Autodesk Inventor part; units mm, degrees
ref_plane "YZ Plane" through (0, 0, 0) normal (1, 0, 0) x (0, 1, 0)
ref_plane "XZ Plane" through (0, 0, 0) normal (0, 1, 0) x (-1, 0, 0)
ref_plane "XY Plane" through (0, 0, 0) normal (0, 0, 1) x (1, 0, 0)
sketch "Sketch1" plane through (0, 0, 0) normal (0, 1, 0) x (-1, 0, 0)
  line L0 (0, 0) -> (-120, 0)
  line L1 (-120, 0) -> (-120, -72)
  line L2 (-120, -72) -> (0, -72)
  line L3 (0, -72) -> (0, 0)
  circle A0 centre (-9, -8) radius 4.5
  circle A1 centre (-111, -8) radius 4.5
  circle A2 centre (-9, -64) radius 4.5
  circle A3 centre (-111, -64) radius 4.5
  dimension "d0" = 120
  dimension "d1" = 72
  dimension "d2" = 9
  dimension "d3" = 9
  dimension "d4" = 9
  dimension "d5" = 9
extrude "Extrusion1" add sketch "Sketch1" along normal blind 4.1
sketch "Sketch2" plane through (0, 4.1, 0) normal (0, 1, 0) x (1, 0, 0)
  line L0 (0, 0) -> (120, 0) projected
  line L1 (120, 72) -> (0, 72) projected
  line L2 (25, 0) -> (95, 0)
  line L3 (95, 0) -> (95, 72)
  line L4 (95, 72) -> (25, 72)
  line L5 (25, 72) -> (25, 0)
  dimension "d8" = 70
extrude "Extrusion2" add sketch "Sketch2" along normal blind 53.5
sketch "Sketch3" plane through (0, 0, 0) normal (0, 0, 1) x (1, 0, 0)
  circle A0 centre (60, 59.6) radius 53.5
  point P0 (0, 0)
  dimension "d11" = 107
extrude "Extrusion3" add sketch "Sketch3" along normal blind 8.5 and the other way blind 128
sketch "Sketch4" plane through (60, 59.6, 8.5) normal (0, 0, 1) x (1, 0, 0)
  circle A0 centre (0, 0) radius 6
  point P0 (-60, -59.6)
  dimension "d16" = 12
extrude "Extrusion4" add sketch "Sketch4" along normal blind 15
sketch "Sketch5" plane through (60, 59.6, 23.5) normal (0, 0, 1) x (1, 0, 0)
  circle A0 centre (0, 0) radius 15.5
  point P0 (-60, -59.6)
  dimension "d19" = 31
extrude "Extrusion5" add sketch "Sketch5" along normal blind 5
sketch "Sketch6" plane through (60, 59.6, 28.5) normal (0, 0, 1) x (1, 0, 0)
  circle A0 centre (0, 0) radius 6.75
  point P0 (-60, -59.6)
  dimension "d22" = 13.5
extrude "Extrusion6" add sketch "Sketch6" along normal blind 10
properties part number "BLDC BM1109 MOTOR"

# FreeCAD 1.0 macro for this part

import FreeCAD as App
import Part
import Sketcher


def add_polygon(sketch, points):
    """Adds a closed chain of lines whose ends are joined by coincident constraints."""
    first, n = sketch.GeometryCount, len(points)
    for a, b in zip(points, points[1:] + points[:1]):
        sketch.addGeometry(Part.LineSegment(App.Vector(*a, 0), App.Vector(*b, 0)), False)
    for i in range(n):
        sketch.addConstraint(Sketcher.Constraint("Coincident", first + i, 2, first + (i + 1) % n, 1))

doc = App.newDocument("Part")
body = doc.addObject("PartDesign::Body", "Body")

# Sketch on XZ plane
sketch1 = doc.addObject("Sketcher::SketchObject", "Sketch")
body.addObject(sketch1)
sketch1.AttachmentSupport = (doc.XZ_Plane, [""])
sketch1.MapMode = "FlatFace"
add_polygon(sketch1, [(0, -72), (0, 0), (120, 0), (120, -72)])  # lines 0-3
sketch1.addGeometry(Part.Circle(App.Vector(111, -64, 0), App.Vector(0, 0, 1), 4.5), False)  # 4
sketch1.addGeometry(Part.Circle(App.Vector(9, -64, 0), App.Vector(0, 0, 1), 4.5), False)  # 5
sketch1.addGeometry(Part.Circle(App.Vector(111, -8, 0), App.Vector(0, 0, 1), 4.5), False)  # 6
sketch1.addGeometry(Part.Circle(App.Vector(9, -8, 0), App.Vector(0, 0, 1), 4.5), False)  # 7
sketch1.addConstraint(Sketcher.Constraint("Vertical", 0))
sketch1.addConstraint(Sketcher.Constraint("Horizontal", 1))
sketch1.addConstraint(Sketcher.Constraint("Vertical", 2))
sketch1.addConstraint(Sketcher.Constraint("Horizontal", 3))
sketch1.addConstraint(Sketcher.Constraint("Coincident", 0, 2, -1, 1))
sketch1.addConstraint(Sketcher.Constraint("Equal", 4, 5))
sketch1.addConstraint(Sketcher.Constraint("Equal", 5, 6))
sketch1.addConstraint(Sketcher.Constraint("Equal", 6, 7))
sketch1.addConstraint(Sketcher.Constraint("Horizontal", 4, 3, 5, 3))
sketch1.addConstraint(Sketcher.Constraint("Horizontal", 6, 3, 7, 3))
sketch1.addConstraint(Sketcher.Constraint("Vertical", 4, 3, 6, 3))
sketch1.addConstraint(Sketcher.Constraint("Vertical", 5, 3, 7, 3))
sketch1.addConstraint(Sketcher.Constraint("Diameter", 4, 9.0))
sketch1.addConstraint(Sketcher.Constraint("DistanceX", 1, 1, 1, 2, 120.0))
sketch1.addConstraint(Sketcher.Constraint("DistanceY", 0, 1, 0, 2, 72.0))
sketch1.addConstraint(Sketcher.Constraint("DistanceX", -1, 1, 5, 3, 9.0))
sketch1.addConstraint(Sketcher.Constraint("DistanceX", 6, 3, 1, 2, 9.0))
sketch1.addConstraint(Sketcher.Constraint("DistanceY", 4, 3, -1, 1, 64.0))
sketch1.addConstraint(Sketcher.Constraint("DistanceY", 6, 3, -1, 1, 8.0))
pad1 = doc.addObject("PartDesign::Pad", "Pad")
body.addObject(pad1)
pad1.Profile = sketch1
pad1.Length = 4.1
pad1.Reversed = True

# Sketch on XZ plane
sketch2 = doc.addObject("Sketcher::SketchObject", "Sketch001")
body.addObject(sketch2)
sketch2.AttachmentSupport = (doc.XZ_Plane, [""])
sketch2.MapMode = "FlatFace"
sketch2.AttachmentOffset = App.Placement(App.Vector(0, 0, -4.1), App.Rotation())
add_polygon(sketch2, [(25, -72), (25, 0), (95, 0), (95, -72)])  # lines 0-3
sketch2.addConstraint(Sketcher.Constraint("Vertical", 0))
sketch2.addConstraint(Sketcher.Constraint("Horizontal", 1))
sketch2.addConstraint(Sketcher.Constraint("Vertical", 2))
sketch2.addConstraint(Sketcher.Constraint("Horizontal", 3))
sketch2.addConstraint(Sketcher.Constraint("PointOnObject", 0, 2, -1))
sketch2.addConstraint(Sketcher.Constraint("DistanceX", 1, 1, 1, 2, 70.0))
sketch2.addConstraint(Sketcher.Constraint("DistanceY", 0, 1, 0, 2, 72.0))
sketch2.addConstraint(Sketcher.Constraint("DistanceX", -1, 1, 0, 2, 25.0))
pad2 = doc.addObject("PartDesign::Pad", "Pad001")
body.addObject(pad2)
pad2.Profile = sketch2
pad2.Length = 53.5
pad2.Reversed = True

# Sketch on XY plane
sketch3 = doc.addObject("Sketcher::SketchObject", "Sketch002")
body.addObject(sketch3)
sketch3.AttachmentSupport = (doc.XY_Plane, [""])
sketch3.MapMode = "FlatFace"
sketch3.addGeometry(Part.Circle(App.Vector(60, 59.6, 0), App.Vector(0, 0, 1), 53.5), False)
sketch3.addConstraint(Sketcher.Constraint("Diameter", 0, 107.0))
sketch3.addConstraint(Sketcher.Constraint("DistanceX", -1, 1, 0, 3, 60.0))
sketch3.addConstraint(Sketcher.Constraint("DistanceY", -1, 1, 0, 3, 59.6))
pad3 = doc.addObject("PartDesign::Pad", "Pad002")
body.addObject(pad3)
pad3.Profile = sketch3
pad3.Type = "TwoLengths"
pad3.Length = 8.5
pad3.Length2 = 128

# Sketch on XY plane
sketch4 = doc.addObject("Sketcher::SketchObject", "Sketch003")
body.addObject(sketch4)
sketch4.AttachmentSupport = (doc.XY_Plane, [""])
sketch4.MapMode = "FlatFace"
sketch4.AttachmentOffset = App.Placement(App.Vector(0, 0, 8.5), App.Rotation())
sketch4.addGeometry(Part.Circle(App.Vector(60, 59.6, 0), App.Vector(0, 0, 1), 6), False)
sketch4.addConstraint(Sketcher.Constraint("Diameter", 0, 12.0))
sketch4.addConstraint(Sketcher.Constraint("DistanceX", -1, 1, 0, 3, 60.0))
sketch4.addConstraint(Sketcher.Constraint("DistanceY", -1, 1, 0, 3, 59.6))
pad4 = doc.addObject("PartDesign::Pad", "Pad003")
body.addObject(pad4)
pad4.Profile = sketch4
pad4.Length = 15

# Sketch on XY plane
sketch5 = doc.addObject("Sketcher::SketchObject", "Sketch004")
body.addObject(sketch5)
sketch5.AttachmentSupport = (doc.XY_Plane, [""])
sketch5.MapMode = "FlatFace"
sketch5.AttachmentOffset = App.Placement(App.Vector(0, 0, 23.5), App.Rotation())
sketch5.addGeometry(Part.Circle(App.Vector(60, 59.6, 0), App.Vector(0, 0, 1), 15.5), False)
sketch5.addConstraint(Sketcher.Constraint("Diameter", 0, 31.0))
sketch5.addConstraint(Sketcher.Constraint("DistanceX", -1, 1, 0, 3, 60.0))
sketch5.addConstraint(Sketcher.Constraint("DistanceY", -1, 1, 0, 3, 59.6))
pad5 = doc.addObject("PartDesign::Pad", "Pad004")
body.addObject(pad5)
pad5.Profile = sketch5
pad5.Length = 5

# Sketch on XY plane
sketch6 = doc.addObject("Sketcher::SketchObject", "Sketch005")
body.addObject(sketch6)
sketch6.AttachmentSupport = (doc.XY_Plane, [""])
sketch6.MapMode = "FlatFace"
sketch6.AttachmentOffset = App.Placement(App.Vector(0, 0, 28.5), App.Rotation())
sketch6.addGeometry(Part.Circle(App.Vector(60, 59.6, 0), App.Vector(0, 0, 1), 6.75), False)
sketch6.addConstraint(Sketcher.Constraint("Diameter", 0, 13.5))
sketch6.addConstraint(Sketcher.Constraint("DistanceX", -1, 1, 0, 3, 60.0))
sketch6.addConstraint(Sketcher.Constraint("DistanceY", -1, 1, 0, 3, 59.6))
pad6 = doc.addObject("PartDesign::Pad", "Pad005")
body.addObject(pad6)
pad6.Profile = sketch6
pad6.Length = 10

doc.recompute()
